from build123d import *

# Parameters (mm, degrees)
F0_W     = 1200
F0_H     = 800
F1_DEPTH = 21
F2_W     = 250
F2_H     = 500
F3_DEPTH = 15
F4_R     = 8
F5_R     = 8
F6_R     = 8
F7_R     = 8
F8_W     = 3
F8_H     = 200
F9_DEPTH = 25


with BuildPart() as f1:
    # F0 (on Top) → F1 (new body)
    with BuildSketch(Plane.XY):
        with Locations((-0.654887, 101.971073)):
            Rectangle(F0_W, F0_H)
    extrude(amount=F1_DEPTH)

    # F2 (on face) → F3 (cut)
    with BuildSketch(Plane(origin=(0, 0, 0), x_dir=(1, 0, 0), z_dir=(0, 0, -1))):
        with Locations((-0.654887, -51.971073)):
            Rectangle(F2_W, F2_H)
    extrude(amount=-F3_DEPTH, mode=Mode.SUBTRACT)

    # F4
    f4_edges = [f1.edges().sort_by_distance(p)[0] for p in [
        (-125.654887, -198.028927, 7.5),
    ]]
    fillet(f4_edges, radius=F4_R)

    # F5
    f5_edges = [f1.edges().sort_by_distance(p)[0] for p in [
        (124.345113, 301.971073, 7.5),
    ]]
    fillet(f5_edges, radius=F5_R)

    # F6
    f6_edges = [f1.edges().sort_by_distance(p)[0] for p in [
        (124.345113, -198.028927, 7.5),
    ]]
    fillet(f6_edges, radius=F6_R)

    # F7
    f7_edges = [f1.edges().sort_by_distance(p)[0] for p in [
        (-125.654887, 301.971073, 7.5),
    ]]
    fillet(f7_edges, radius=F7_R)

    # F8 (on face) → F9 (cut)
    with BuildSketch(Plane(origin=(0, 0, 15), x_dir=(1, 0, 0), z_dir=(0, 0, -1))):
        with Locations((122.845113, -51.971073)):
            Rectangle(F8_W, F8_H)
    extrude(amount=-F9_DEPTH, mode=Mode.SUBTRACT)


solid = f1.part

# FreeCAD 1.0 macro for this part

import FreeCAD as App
import Part
import Sketcher


def edges_at(feature, points):
    """Names of the edges that pass closest to the given points."""
    edges = feature.Shape.Edges
    near = lambda p: min(range(len(edges)), key=lambda i: edges[i].distToShape(Part.Vertex(*p))[0])
    return sorted({f"Edge{near(p) + 1}" for p in points})


def add_polygon(sketch, points):
    """Adds a closed chain of lines whose ends are joined by coincident constraints."""
    first, n = sketch.GeometryCount, len(points)
    for a, b in zip(points, points[1:] + points[:1]):
        sketch.addGeometry(Part.LineSegment(App.Vector(*a, 0), App.Vector(*b, 0)), False)
    for i in range(n):
        sketch.addConstraint(Sketcher.Constraint("Coincident", first + i, 2, first + (i + 1) % n, 1))

doc = App.newDocument("Part")
body = doc.addObject("PartDesign::Body", "Body")

sketch1 = body.newObject("Sketcher::SketchObject", "Sketch")
sketch1.AttachmentSupport = (doc.getObject("XY_Plane"), [""])
sketch1.MapMode = "FlatFace"
add_polygon(sketch1, [(-600.654887, 501.971073), (-600.654887, -298.028927), (599.345113, -298.028927), (599.345113, 501.971073)])
sketch1.addConstraint(Sketcher.Constraint("Vertical", 0))
sketch1.addConstraint(Sketcher.Constraint("Horizontal", 1))
sketch1.addConstraint(Sketcher.Constraint("Vertical", 2))
sketch1.addConstraint(Sketcher.Constraint("Horizontal", 3))
sketch1.addConstraint(Sketcher.Constraint("DistanceX", 1, 1, 1, 2, 1200.0))
sketch1.addConstraint(Sketcher.Constraint("DistanceY", 0, 2, 0, 1, 800.0))
sketch1.addConstraint(Sketcher.Constraint("DistanceX", 0, 2, -1, 1, 600.654887))
sketch1.addConstraint(Sketcher.Constraint("DistanceY", 0, 2, -1, 1, 298.028927))
pad1 = body.newObject("PartDesign::Pad", "Pad")
pad1.Profile = sketch1
pad1.Length = 21

sketch2 = body.newObject("Sketcher::SketchObject", "Sketch001")
sketch2.AttachmentSupport = (doc.getObject("XY_Plane"), [""])
sketch2.MapMode = "FlatFace"
add_polygon(sketch2, [(-125.654887, -198.028927), (-125.654887, 301.971073), (124.345113, 301.971073), (124.345113, -198.028927)])
sketch2.addConstraint(Sketcher.Constraint("Vertical", 0))
sketch2.addConstraint(Sketcher.Constraint("Horizontal", 1))
sketch2.addConstraint(Sketcher.Constraint("Vertical", 2))
sketch2.addConstraint(Sketcher.Constraint("Horizontal", 3))
sketch2.addConstraint(Sketcher.Constraint("DistanceX", 1, 1, 1, 2, 250.0))
sketch2.addConstraint(Sketcher.Constraint("DistanceY", 0, 1, 0, 2, 500.0))
sketch2.addConstraint(Sketcher.Constraint("DistanceX", 0, 2, -1, 1, 125.654887))
sketch2.addConstraint(Sketcher.Constraint("DistanceY", -1, 1, 0, 2, 301.971073))
pocket1 = body.newObject("PartDesign::Pocket", "Pocket")
pocket1.Profile = sketch2
pocket1.Length = 15
pocket1.Reversed = True
doc.recompute()

fillet = body.newObject("PartDesign::Fillet", "Fillet")
fillet.Base = (pocket1, edges_at(pocket1, [(-125.655, -198.029, 7.5)]))
fillet.Radius = 8
doc.recompute()

fillet2 = body.newObject("PartDesign::Fillet", "Fillet001")
fillet2.Base = (fillet, edges_at(fillet, [(124.345, 301.971, 7.5)]))
fillet2.Radius = 8
doc.recompute()

fillet3 = body.newObject("PartDesign::Fillet", "Fillet002")
fillet3.Base = (fillet2, edges_at(fillet2, [(124.345, -198.029, 7.5)]))
fillet3.Radius = 8
doc.recompute()

fillet4 = body.newObject("PartDesign::Fillet", "Fillet003")
fillet4.Base = (fillet3, edges_at(fillet3, [(-125.655, 301.971, 7.5)]))
fillet4.Radius = 8

sketch3 = body.newObject("Sketcher::SketchObject", "Sketch002")
sketch3.AttachmentSupport = (doc.getObject("XY_Plane"), [""])
sketch3.MapMode = "FlatFace"
sketch3.AttachmentOffset = App.Placement(App.Vector(0, 0, 15), App.Rotation())
add_polygon(sketch3, [(121.345113, -48.028927), (121.345113, 151.971073), (124.345113, 151.971073), (124.345113, -48.028927)])
sketch3.addConstraint(Sketcher.Constraint("Vertical", 0))
sketch3.addConstraint(Sketcher.Constraint("Horizontal", 1))
sketch3.addConstraint(Sketcher.Constraint("Vertical", 2))
sketch3.addConstraint(Sketcher.Constraint("Horizontal", 3))
sketch3.addConstraint(Sketcher.Constraint("DistanceX", 1, 1, 1, 2, 3.0))
sketch3.addConstraint(Sketcher.Constraint("DistanceY", 0, 1, 0, 2, 200.0))
sketch3.addConstraint(Sketcher.Constraint("DistanceX", -1, 1, 0, 2, 121.345113))
sketch3.addConstraint(Sketcher.Constraint("DistanceY", -1, 1, 0, 2, 151.971073))
pocket2 = body.newObject("PartDesign::Pocket", "Pocket001")
pocket2.Profile = sketch3
pocket2.Length = 25
pocket2.Reversed = True

doc.recompute()
